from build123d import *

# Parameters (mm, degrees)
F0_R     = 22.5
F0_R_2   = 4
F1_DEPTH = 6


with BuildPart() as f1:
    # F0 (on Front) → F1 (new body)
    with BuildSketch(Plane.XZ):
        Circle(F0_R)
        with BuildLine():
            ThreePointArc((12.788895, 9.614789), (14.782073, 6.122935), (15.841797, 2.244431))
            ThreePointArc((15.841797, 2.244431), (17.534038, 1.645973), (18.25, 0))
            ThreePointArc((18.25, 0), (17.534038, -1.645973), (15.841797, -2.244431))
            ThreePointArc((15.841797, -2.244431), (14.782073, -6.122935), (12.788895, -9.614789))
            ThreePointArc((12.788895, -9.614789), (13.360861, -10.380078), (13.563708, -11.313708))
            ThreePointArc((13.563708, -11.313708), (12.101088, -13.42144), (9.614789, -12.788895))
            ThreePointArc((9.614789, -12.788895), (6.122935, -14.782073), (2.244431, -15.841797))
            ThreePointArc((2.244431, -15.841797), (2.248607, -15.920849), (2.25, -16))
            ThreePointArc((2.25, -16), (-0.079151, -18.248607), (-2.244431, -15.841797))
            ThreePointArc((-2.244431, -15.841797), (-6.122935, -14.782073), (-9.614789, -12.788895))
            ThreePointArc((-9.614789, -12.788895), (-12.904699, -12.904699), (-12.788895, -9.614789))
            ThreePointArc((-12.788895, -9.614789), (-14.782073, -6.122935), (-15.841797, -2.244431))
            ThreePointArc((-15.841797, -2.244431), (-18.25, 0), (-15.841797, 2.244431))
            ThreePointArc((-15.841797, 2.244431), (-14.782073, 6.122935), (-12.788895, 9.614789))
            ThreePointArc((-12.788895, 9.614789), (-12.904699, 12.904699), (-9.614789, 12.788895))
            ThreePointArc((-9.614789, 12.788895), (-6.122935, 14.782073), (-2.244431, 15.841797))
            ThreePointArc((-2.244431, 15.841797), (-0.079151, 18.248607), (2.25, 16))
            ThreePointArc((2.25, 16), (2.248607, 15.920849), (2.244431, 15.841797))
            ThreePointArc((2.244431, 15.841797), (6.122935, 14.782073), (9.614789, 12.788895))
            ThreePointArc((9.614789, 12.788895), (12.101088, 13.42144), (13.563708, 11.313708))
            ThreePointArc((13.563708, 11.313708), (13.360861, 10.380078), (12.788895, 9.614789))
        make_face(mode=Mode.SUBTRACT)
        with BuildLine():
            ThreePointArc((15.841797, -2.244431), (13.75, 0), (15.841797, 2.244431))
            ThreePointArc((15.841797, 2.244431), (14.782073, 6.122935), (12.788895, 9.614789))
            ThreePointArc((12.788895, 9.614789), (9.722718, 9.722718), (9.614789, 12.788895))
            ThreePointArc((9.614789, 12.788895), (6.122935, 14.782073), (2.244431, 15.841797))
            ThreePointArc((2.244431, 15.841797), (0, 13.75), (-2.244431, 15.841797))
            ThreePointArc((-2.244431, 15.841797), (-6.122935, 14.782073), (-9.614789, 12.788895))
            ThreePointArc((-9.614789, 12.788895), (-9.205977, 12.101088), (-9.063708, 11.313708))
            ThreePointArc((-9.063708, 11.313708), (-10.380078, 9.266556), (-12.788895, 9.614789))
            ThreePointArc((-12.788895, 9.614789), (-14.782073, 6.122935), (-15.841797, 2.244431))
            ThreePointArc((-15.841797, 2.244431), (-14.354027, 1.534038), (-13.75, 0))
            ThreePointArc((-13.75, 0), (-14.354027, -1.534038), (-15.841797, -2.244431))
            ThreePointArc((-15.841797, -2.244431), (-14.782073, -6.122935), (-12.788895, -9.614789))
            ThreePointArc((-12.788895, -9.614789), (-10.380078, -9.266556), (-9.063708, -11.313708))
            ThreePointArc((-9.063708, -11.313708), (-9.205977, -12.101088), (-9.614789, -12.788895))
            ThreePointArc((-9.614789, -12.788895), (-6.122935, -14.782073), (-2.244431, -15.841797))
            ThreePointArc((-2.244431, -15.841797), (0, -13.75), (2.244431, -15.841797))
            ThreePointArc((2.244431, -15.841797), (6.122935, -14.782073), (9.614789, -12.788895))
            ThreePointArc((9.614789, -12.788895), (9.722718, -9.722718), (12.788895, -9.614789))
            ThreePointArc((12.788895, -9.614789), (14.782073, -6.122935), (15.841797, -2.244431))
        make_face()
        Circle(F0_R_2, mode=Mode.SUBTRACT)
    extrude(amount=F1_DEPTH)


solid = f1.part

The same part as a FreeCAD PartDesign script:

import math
import FreeCAD as App
import Part
import Sketcher

doc = App.newDocument("Part")
body = doc.addObject("PartDesign::Body", "Body")

sketch1 = body.newObject("Sketcher::SketchObject", "Sketch")
sketch1.AttachmentSupport = (doc.getObject("XZ_Plane"), [""])
sketch1.MapMode = "FlatFace"
sketch1.addGeometry(Part.Circle(App.Vector(0, 0, 0), App.Vector(0, 0, 1), 22.5), False)
sketch1.addGeometry(Part.ArcOfCircle(Part.Circle(App.Vector(-11.31, -11.31, 0), App.Vector(0, 0, 1), 2.25), math.radians(131), math.radians(319)), False)
sketch1.addGeometry(Part.ArcOfCircle(Part.Circle(App.Vector(-11.31, -11.31, 0), App.Vector(0, 0, 1), 2.25), math.radians(0), math.radians(131)), False)
sketch1.addGeometry(Part.ArcOfCircle(Part.Circle(App.Vector(-11.31, -11.31, 0), App.Vector(0, 0, 1), 2.25), math.radians(-41), math.radians(0)), False)
sketch1.addGeometry(Part.ArcOfCircle(Part.Circle(App.Vector(0, -16, 0), App.Vector(0, 0, 1), 2.25), math.radians(176), math.radians(360)), False)
sketch1.addGeometry(Part.ArcOfCircle(Part.Circle(App.Vector(0, -16, 0), App.Vector(0, 0, 1), 2.25), math.radians(4), math.radians(176)), False)
sketch1.addGeometry(Part.ArcOfCircle(Part.Circle(App.Vector(0, -16, 0), App.Vector(0, 0, 1), 2.25), math.radians(0), math.radians(4.03)), False)
sketch1.addGeometry(Part.ArcOfCircle(Part.Circle(App.Vector(11.31, -11.31, 0), App.Vector(0, 0, 1), 2.25), math.radians(-139), math.radians(0)), False)
sketch1.addGeometry(Part.ArcOfCircle(Part.Circle(App.Vector(11.31, -11.31, 0), App.Vector(0, 0, 1), 2.25), math.radians(49), math.radians(221)), False)
sketch1.addGeometry(Part.ArcOfCircle(Part.Circle(App.Vector(11.31, -11.31, 0), App.Vector(0, 0, 1), 2.25), math.radians(0), math.radians(49)), False)
sketch1.addGeometry(Part.ArcOfCircle(Part.Circle(App.Vector(-16, 0, 0), App.Vector(0, 0, 1), 2.25), math.radians(86), math.radians(274)), False)
sketch1.addGeometry(Part.ArcOfCircle(Part.Circle(App.Vector(-16, 0, 0), App.Vector(0, 0, 1), 2.25), math.radians(0), math.radians(86)), False)
sketch1.addGeometry(Part.ArcOfCircle(Part.Circle(App.Vector(-16, 0, 0), App.Vector(0, 0, 1), 2.25), math.radians(-86), math.radians(0)), False)
sketch1.addGeometry(Part.ArcOfCircle(Part.Circle(App.Vector(-11.31, 11.31, 0), App.Vector(0, 0, 1), 2.25), math.radians(41), math.radians(229)), False)
sketch1.addGeometry(Part.ArcOfCircle(Part.Circle(App.Vector(-11.31, 11.31, 0), App.Vector(0, 0, 1), 2.25), math.radians(0), math.radians(41)), False)
sketch1.addGeometry(Part.ArcOfCircle(Part.Circle(App.Vector(-11.31, 11.31, 0), App.Vector(0, 0, 1), 2.25), math.radians(-131), math.radians(0)), False)
sketch1.addGeometry(Part.Circle(App.Vector(0, 0, 0), App.Vector(0, 0, 1), 4), False)
sketch1.addGeometry(Part.ArcOfCircle(Part.Circle(App.Vector(16, 0, 0), App.Vector(0, 0, 1), 2.25), math.radians(-94), math.radians(0)), False)
sketch1.addGeometry(Part.ArcOfCircle(Part.Circle(App.Vector(16, 0, 0), App.Vector(0, 0, 1), 2.25), math.radians(94), math.radians(266)), False)
sketch1.addGeometry(Part.ArcOfCircle(Part.Circle(App.Vector(16, 0, 0), App.Vector(0, 0, 1), 2.25), math.radians(0), math.radians(94)), False)
sketch1.addGeometry(Part.ArcOfCircle(Part.Circle(App.Vector(0, 16, 0), App.Vector(0, 0, 1), 2.25), math.radians(-4.03), math.radians(0)), False)
sketch1.addGeometry(Part.ArcOfCircle(Part.Circle(App.Vector(0, 16, 0), App.Vector(0, 0, 1), 2.25), math.radians(-176), math.radians(-4)), False)
sketch1.addGeometry(Part.ArcOfCircle(Part.Circle(App.Vector(0, 16, 0), App.Vector(0, 0, 1), 2.25), math.radians(0), math.radians(184)), False)
sketch1.addGeometry(Part.ArcOfCircle(Part.Circle(App.Vector(11.31, 11.31, 0), App.Vector(0, 0, 1), 2.25), math.radians(-49), math.radians(0)), False)
sketch1.addGeometry(Part.ArcOfCircle(Part.Circle(App.Vector(11.31, 11.31, 0), App.Vector(0, 0, 1), 2.25), math.radians(139), math.radians(311)), False)
sketch1.addGeometry(Part.ArcOfCircle(Part.Circle(App.Vector(11.31, 11.31, 0), App.Vector(0, 0, 1), 2.25), math.radians(0), math.radians(139)), False)
sketch1.addConstraint(Sketcher.Constraint("Tangent", 1, 1, 2, 2))
sketch1.addConstraint(Sketcher.Constraint("Coincident", 2, 1, 3, 2))
sketch1.addConstraint(Sketcher.Constraint("Coincident", 3, 1, 1, 2))
sketch1.addConstraint(Sketcher.Constraint("Tangent", 4, 1, 5, 2))
sketch1.addConstraint(Sketcher.Constraint("Coincident", 5, 1, 6, 2))
sketch1.addConstraint(Sketcher.Constraint("Coincident", 6, 1, 4, 2))
sketch1.addConstraint(Sketcher.Constraint("Tangent", 7, 1, 8, 2))
sketch1.addConstraint(Sketcher.Constraint("Tangent", 8, 1, 9, 2))
sketch1.addConstraint(Sketcher.Constraint("Tangent", 9, 1, 7, 2))
sketch1.addConstraint(Sketcher.Constraint("Tangent", 10, 1, 11, 2))
sketch1.addConstraint(Sketcher.Constraint("Tangent", 11, 1, 12, 2))
sketch1.addConstraint(Sketcher.Constraint("Tangent", 12, 1, 10, 2))
sketch1.addConstraint(Sketcher.Constraint("Coincident", 13, 1, 14, 2))
sketch1.addConstraint(Sketcher.Constraint("Coincident", 14, 1, 15, 2))
sketch1.addConstraint(Sketcher.Constraint("Tangent", 15, 1, 13, 2))
sketch1.addConstraint(Sketcher.Constraint("Tangent", 17, 1, 18, 2))
sketch1.addConstraint(Sketcher.Constraint("Tangent", 18, 1, 19, 2))
sketch1.addConstraint(Sketcher.Constraint("Tangent", 19, 1, 17, 2))
sketch1.addConstraint(Sketcher.Constraint("Coincident", 20, 1, 21, 2))
sketch1.addConstraint(Sketcher.Constraint("Tangent", 21, 1, 22, 2))
sketch1.addConstraint(Sketcher.Constraint("Coincident", 22, 1, 20, 2))
sketch1.addConstraint(Sketcher.Constraint("Tangent", 23, 1, 24, 2))
sketch1.addConstraint(Sketcher.Constraint("Tangent", 24, 1, 25, 2))
sketch1.addConstraint(Sketcher.Constraint("Tangent", 25, 1, 23, 2))
sketch1.addConstraint(Sketcher.Constraint("Coincident", 0, 3, -1, 1))
sketch1.addConstraint(Sketcher.Constraint("Coincident", 16, 3, -1, 1))
sketch1.addConstraint(Sketcher.Constraint("Equal", 1, 2))
sketch1.addConstraint(Sketcher.Constraint("Equal", 2, 4))
sketch1.addConstraint(Sketcher.Constraint("Equal", 4, 5))
sketch1.addConstraint(Sketcher.Constraint("Equal", 5, 7))
sketch1.addConstraint(Sketcher.Constraint("Equal", 8, 10))
sketch1.addConstraint(Sketcher.Constraint("Equal", 12, 13))
sketch1.addConstraint(Sketcher.Constraint("Equal", 3, 14))
sketch1.addConstraint(Sketcher.Constraint("Equal", 13, 15))
sketch1.addConstraint(Sketcher.Constraint("Equal", 15, 17))
sketch1.addConstraint(Sketcher.Constraint("Equal", 6, 20))
sketch1.addConstraint(Sketcher.Constraint("Equal", 19, 21))
sketch1.addConstraint(Sketcher.Constraint("Equal", 21, 22))
sketch1.addConstraint(Sketcher.Constraint("Equal", 15, 23))
sketch1.addConstraint(Sketcher.Constraint("Symmetric", 7, 3, 13, 3, -1, 1))
sketch1.addConstraint(Sketcher.Constraint("Symmetric", 10, 3, 17, 3, -1, 1))
sketch1.addConstraint(Sketcher.Constraint("Symmetric", 4, 3, 21, 3, -1, 1))
sketch1.addConstraint(Sketcher.Constraint("Symmetric", 1, 3, 23, 3, -1, 1))
sketch1.addConstraint(Sketcher.Constraint("Symmetric", 1, 3, 7, 3, -2))
sketch1.addConstraint(Sketcher.Constraint("Symmetric", 4, 1, 5, 1, -2))
sketch1.addConstraint(Sketcher.Constraint("Symmetric", 12, 1, 17, 1, -2))
sketch1.addConstraint(Sketcher.Constraint("PointOnObject", 11, 1, -1))
sketch1.addConstraint(Sketcher.Constraint("PointOnObject", 19, 1, -1))
sketch1.addConstraint(Sketcher.Constraint("Horizontal", 9, 3, 2, 1))
sketch1.addConstraint(Sketcher.Constraint("Horizontal", 5, 3, 6, 1))
sketch1.addConstraint(Sketcher.Constraint("Horizontal", 3, 1, 7, 1))
sketch1.addConstraint(Sketcher.Constraint("Horizontal", 1, 1, 8, 1))
sketch1.addConstraint(Sketcher.Constraint("Horizontal", 2, 1, 9, 1))
sketch1.addConstraint(Sketcher.Constraint("Horizontal", 25, 3, 14, 1))
sketch1.addConstraint(Sketcher.Constraint("Horizontal", 10, 1, 18, 1))
sketch1.addConstraint(Sketcher.Constraint("Horizontal", 20, 1, 21, 1))
sketch1.addConstraint(Sketcher.Constraint("Horizontal", 21, 3, 22, 1))
sketch1.addConstraint(Sketcher.Constraint("Horizontal", 15, 1, 23, 1))
sketch1.addConstraint(Sketcher.Constraint("Horizontal", 13, 1, 24, 1))
sketch1.addConstraint(Sketcher.Constraint("Horizontal", 14, 1, 25, 1))
sketch1.addConstraint(Sketcher.Constraint("Vertical", 10, 1, 12, 1))
sketch1.addConstraint(Sketcher.Constraint("Vertical", 3, 1, 13, 1))
sketch1.addConstraint(Sketcher.Constraint("Vertical", 1, 1, 15, 1))
sketch1.addConstraint(Sketcher.Constraint("Vertical", 5, 1, 20, 1))
sketch1.addConstraint(Sketcher.Constraint("Diameter", 0, 45.0))
sketch1.addConstraint(Sketcher.Constraint("Diameter", 16, 8.0))
sketch1.addConstraint(Sketcher.Constraint("Radius", 1, 2.250001))
sketch1.addConstraint(Sketcher.Constraint("DistanceY", 4, 3, -1, 1, 16.0))
sketch1.addConstraint(Sketcher.Constraint("DistanceX", 10, 3, -1, 1, 16.0))
sketch1.addConstraint(Sketcher.Constraint("Radius", 6, 2.25037))
sketch1.addConstraint(Sketcher.Constraint("Radius", 3, 2.250013))
sketch1.addConstraint(Sketcher.Constraint("DistanceY", 4, 1, 3, 1, 3.052902))
sketch1.addConstraint(Sketcher.Constraint("DistanceX", 6, 3, 5, 1, 2.244801))
sketch1.addConstraint(Sketcher.Constraint("DistanceX", 1, 3, -1, 1, 11.313708))
sketch1.addConstraint(Sketcher.Constraint("DistanceY", 1, 3, -1, 1, 11.313708))
sketch1.addConstraint(Sketcher.Constraint("DistanceY", 1, 1, -1, 1, 9.614789))
sketch1.addConstraint(Sketcher.Constraint("DistanceY", -1, 1, 10, 1, 2.244431))
pad1 = body.newObject("PartDesign::Pad", "Pad")
pad1.Profile = sketch1
pad1.Length = 6

doc.recompute()
